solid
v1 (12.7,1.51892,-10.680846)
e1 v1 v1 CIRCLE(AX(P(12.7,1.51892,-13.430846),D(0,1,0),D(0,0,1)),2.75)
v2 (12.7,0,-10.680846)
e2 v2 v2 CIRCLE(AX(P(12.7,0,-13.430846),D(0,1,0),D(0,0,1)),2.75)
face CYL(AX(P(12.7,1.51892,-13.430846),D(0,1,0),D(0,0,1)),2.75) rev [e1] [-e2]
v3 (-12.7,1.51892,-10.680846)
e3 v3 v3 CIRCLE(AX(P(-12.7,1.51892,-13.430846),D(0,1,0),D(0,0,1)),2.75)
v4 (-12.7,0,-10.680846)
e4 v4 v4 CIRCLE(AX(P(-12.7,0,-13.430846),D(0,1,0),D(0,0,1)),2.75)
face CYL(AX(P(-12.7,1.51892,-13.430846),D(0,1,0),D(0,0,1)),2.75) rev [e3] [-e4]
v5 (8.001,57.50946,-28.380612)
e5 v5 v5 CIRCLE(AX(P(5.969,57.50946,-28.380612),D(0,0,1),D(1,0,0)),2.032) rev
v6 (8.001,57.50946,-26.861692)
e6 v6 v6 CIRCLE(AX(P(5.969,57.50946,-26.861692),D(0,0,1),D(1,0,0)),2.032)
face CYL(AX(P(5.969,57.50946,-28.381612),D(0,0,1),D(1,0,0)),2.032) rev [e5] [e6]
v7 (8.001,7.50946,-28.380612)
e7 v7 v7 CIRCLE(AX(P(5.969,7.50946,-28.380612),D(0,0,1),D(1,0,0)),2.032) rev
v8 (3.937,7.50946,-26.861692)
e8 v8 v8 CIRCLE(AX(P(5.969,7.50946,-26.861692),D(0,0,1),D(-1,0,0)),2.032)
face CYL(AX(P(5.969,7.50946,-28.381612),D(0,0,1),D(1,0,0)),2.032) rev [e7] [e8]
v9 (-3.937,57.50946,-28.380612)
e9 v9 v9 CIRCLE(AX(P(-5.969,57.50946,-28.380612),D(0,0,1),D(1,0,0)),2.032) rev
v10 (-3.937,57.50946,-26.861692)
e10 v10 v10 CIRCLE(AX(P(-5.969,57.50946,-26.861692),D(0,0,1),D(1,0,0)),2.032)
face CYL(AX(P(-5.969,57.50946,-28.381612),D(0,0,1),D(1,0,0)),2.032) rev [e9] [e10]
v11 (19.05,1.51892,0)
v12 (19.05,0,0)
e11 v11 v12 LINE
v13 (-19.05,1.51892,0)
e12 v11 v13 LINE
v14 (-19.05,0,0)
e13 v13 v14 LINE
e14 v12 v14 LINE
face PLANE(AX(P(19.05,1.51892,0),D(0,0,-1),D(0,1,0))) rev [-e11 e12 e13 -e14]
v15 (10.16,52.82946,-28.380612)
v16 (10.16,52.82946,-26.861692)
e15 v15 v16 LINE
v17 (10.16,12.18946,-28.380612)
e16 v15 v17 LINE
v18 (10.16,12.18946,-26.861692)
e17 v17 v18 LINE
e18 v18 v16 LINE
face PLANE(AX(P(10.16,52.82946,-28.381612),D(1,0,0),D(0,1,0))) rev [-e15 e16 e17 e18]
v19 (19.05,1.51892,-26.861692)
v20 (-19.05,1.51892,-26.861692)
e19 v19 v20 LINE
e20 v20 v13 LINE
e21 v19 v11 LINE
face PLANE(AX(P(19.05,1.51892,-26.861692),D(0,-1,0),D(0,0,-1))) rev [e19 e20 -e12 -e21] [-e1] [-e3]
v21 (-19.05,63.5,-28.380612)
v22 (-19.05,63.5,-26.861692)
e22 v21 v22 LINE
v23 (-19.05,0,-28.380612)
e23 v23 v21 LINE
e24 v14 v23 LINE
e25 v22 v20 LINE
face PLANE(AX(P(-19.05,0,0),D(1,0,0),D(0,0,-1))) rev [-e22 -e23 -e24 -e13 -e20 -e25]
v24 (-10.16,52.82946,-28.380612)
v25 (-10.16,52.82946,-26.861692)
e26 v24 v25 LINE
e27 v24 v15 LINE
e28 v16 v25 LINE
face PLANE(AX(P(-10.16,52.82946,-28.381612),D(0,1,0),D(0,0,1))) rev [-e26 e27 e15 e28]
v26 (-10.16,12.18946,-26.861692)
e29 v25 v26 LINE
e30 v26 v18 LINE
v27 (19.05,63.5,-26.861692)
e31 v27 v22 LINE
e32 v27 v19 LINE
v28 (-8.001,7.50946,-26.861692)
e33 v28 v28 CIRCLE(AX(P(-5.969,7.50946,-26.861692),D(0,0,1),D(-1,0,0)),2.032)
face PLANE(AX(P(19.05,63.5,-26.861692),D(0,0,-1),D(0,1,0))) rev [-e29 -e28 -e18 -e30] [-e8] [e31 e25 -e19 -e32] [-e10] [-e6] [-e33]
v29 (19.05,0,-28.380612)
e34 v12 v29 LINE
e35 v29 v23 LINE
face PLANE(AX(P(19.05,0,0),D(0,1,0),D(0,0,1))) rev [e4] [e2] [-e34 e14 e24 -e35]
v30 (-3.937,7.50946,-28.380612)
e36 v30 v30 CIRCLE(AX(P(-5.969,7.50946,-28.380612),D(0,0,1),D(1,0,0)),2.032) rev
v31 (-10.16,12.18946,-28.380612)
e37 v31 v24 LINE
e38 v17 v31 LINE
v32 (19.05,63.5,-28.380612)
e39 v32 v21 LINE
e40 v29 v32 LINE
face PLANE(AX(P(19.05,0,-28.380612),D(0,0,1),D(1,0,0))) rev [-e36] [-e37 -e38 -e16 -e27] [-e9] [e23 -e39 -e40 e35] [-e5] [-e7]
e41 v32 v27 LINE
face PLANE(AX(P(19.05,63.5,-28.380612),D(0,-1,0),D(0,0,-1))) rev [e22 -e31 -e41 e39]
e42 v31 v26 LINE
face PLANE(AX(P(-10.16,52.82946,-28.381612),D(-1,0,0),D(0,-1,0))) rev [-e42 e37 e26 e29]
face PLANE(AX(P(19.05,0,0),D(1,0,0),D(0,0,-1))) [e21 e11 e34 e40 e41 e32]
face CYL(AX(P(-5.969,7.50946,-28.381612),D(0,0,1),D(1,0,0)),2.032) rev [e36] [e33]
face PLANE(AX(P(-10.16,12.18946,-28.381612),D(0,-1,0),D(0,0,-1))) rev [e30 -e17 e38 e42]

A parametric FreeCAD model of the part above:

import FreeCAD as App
import Part
import Sketcher
from FreeCAD import Vector
Q = App.Units.Quantity

doc = App.newDocument("Part")
body = doc.addObject("PartDesign::Body", "Body")

# Sketch on YZ plane
sketch1 = doc.addObject("Sketcher::SketchObject", "Sketch")
body.addObject(sketch1)
sketch1.AttachmentSupport = (doc.YZ_Plane, [""])
sketch1.MapMode = "FlatFace"
sketch1.addGeometry([
    Part.LineSegment(Vector(0, 0, 0), Vector(0, -28.380612, 0)),  # 0
    Part.LineSegment(Vector(0, -28.380612, 0), Vector(63.5, -28.380612, 0)),  # 1
    Part.LineSegment(Vector(63.5, -28.380612, 0), Vector(63.5, -26.861692, 0)),  # 2
    Part.LineSegment(Vector(63.5, -26.861692, 0), Vector(1.51892, -26.861692, 0)),  # 3
    Part.LineSegment(Vector(1.51892, -26.861692, 0), Vector(1.51892, 0, 0)),  # 4
    Part.LineSegment(Vector(1.51892, 0, 0), Vector(0, 0, 0)),  # 5
], False)
sketch1.addConstraint([
    Sketcher.Constraint("Coincident", 0, 2, 1, 1),
    Sketcher.Constraint("Coincident", 1, 2, 2, 1),
    Sketcher.Constraint("Coincident", 2, 2, 3, 1),
    Sketcher.Constraint("Coincident", 3, 2, 4, 1),
    Sketcher.Constraint("Coincident", 4, 2, 5, 1),
    Sketcher.Constraint("Coincident", 5, 2, 0, 1),
    Sketcher.Constraint("Vertical", 0),
    Sketcher.Constraint("Horizontal", 1),
    Sketcher.Constraint("Vertical", 2),
    Sketcher.Constraint("Horizontal", 3),
    Sketcher.Constraint("Vertical", 4),
    Sketcher.Constraint("Horizontal", 5),
    Sketcher.Constraint("Coincident", 5, 2, -1, 1),
    Sketcher.Constraint("Equal", 5, 2),
    Sketcher.Constraint("DistanceX", 1, 1, 1, 2, Q("2.5 in")),
    Sketcher.Constraint("DistanceX", 3, 2, 3, 1, Q("2.4402 in")),
    Sketcher.Constraint("DistanceY", 0, 2, 0, 1, 28.380612),
])
pad1 = doc.addObject("PartDesign::Pad", "Pad")
body.addObject(pad1)
pad1.Profile = sketch1
pad1.Length = Q("1.5 in")
pad1.Midplane = True

# Sketch on XZ plane
sketch2 = doc.addObject("Sketcher::SketchObject", "Sketch001")
body.addObject(sketch2)
sketch2.AttachmentSupport = (doc.XZ_Plane, [""])
sketch2.MapMode = "FlatFace"
sketch2.AttachmentOffset = App.Placement(Vector(0, 0, -0.0598 * 25.4), App.Rotation())
sketch2.addGeometry([
    Part.Circle(Vector(-12.7, -13.430846, 0), Vector(0, 0, 1), 2.75),
    Part.Circle(Vector(12.7, -13.430846, 0), Vector(0, 0, 1), 2.75),
], False)
sketch2.addConstraint([
    Sketcher.Constraint("Equal", 0, 1),
    Sketcher.Constraint("Symmetric", 0, 3, 1, 3, -2),
    Sketcher.Constraint("DistanceX", 0, 3, 1, 3, Q("1 in")),
    Sketcher.Constraint("Diameter", 0, 5.5),
    Sketcher.Constraint("DistanceY", 0, 3, -1, 1, 13.430846),
])
doc.recompute()
hole = doc.addObject("PartDesign::Hole", "Hole")
body.addObject(hole)
hole.Profile = sketch2
hole.ThreadType = "None"
hole.Diameter = 5.5
hole.DepthType = "ThroughAll"
hole.Reversed = True

# Sketch on XY plane
sketch3 = doc.addObject("Sketcher::SketchObject", "Sketch002")
body.addObject(sketch3)
sketch3.AttachmentSupport = (doc.XY_Plane, [""])
sketch3.MapMode = "FlatFace"
sketch3.AttachmentOffset = App.Placement(Vector(0, 0, -26.861692), App.Rotation())
sketch3.addGeometry([
    Part.LineSegment(Vector(-10.16, 52.82946, 0), Vector(-10.16, 12.18946, 0)),
    Part.LineSegment(Vector(-10.16, 12.18946, 0), Vector(10.16, 12.18946, 0)),
    Part.LineSegment(Vector(10.16, 12.18946, 0), Vector(10.16, 52.82946, 0)),
    Part.LineSegment(Vector(10.16, 52.82946, 0), Vector(-10.16, 52.82946, 0)),
], False)
sketch3.addConstraint([
    Sketcher.Constraint("Coincident", 0, 2, 1, 1),
    Sketcher.Constraint("Coincident", 1, 2, 2, 1),
    Sketcher.Constraint("Coincident", 2, 2, 3, 1),
    Sketcher.Constraint("Coincident", 3, 2, 0, 1),
    Sketcher.Constraint("Vertical", 0),
    Sketcher.Constraint("Horizontal", 1),
    Sketcher.Constraint("Vertical", 2),
    Sketcher.Constraint("Horizontal", 3),
    Sketcher.Constraint("DistanceX", 1, 1, 1, 2, Q("0.8 in")),
    Sketcher.Constraint("DistanceY", 0, 2, 0, 1, Q("1.6 in")),
    Sketcher.Constraint("DistanceX", 0, 2, -1, 1, Q("0.4 in")),
    Sketcher.Constraint("DistanceY", -1, 1, 0, 2, Q("0.4799 in")),
])
pocket1 = doc.addObject("PartDesign::Pocket", "Pocket")
body.addObject(pocket1)
pocket1.Profile = sketch3
pocket1.Type = "UpToFirst"

# Sketch on XY plane
sketch4 = doc.addObject("Sketcher::SketchObject", "Sketch003")
body.addObject(sketch4)
sketch4.AttachmentSupport = (doc.XY_Plane, [""])
sketch4.MapMode = "FlatFace"
sketch4.AttachmentOffset = App.Placement(Vector(0, 0, -26.861692), App.Rotation())
sketch4.addGeometry(Part.Circle(Vector(-5.969, 57.50946, 0), Vector(0, 0, 1), 2.032), False)
sketch4.addConstraint([
    Sketcher.Constraint("Diameter", 0, Q("0.16 in")),
    Sketcher.Constraint("DistanceX", 0, 3, -1, 1, Q("0.235 in")),
    Sketcher.Constraint("DistanceY", -1, 1, 0, 3, 57.50946),
])
pocket2 = doc.addObject("PartDesign::Pocket", "Pocket001")
body.addObject(pocket2)
pocket2.Profile = sketch4
pocket2.Type = "UpToFirst"

# Sketch on XY plane
sketch5 = doc.addObject("Sketcher::SketchObject", "Sketch004")
body.addObject(sketch5)
sketch5.AttachmentSupport = (doc.XY_Plane, [""])
sketch5.MapMode = "FlatFace"
sketch5.AttachmentOffset = App.Placement(Vector(0, 0, -26.861692), App.Rotation())
sketch5.addGeometry(Part.Circle(Vector(5.969, 57.50946, 0), Vector(0, 0, 1), 2.032), False)
sketch5.addConstraint([
    Sketcher.Constraint("Diameter", 0, Q("0.16 in")),
    Sketcher.Constraint("DistanceX", -1, 1, 0, 3, Q("0.235 in")),
    Sketcher.Constraint("DistanceY", -1, 1, 0, 3, 57.50946),
])
pocket3 = doc.addObject("PartDesign::Pocket", "Pocket002")
body.addObject(pocket3)
pocket3.Profile = sketch5
pocket3.Type = "UpToFirst"

# Sketch on XY plane
sketch6 = doc.addObject("Sketcher::SketchObject", "Sketch005")
body.addObject(sketch6)
sketch6.AttachmentSupport = (doc.XY_Plane, [""])
sketch6.MapMode = "FlatFace"
sketch6.AttachmentOffset = App.Placement(Vector(0, 0, -26.861692), App.Rotation())
sketch6.addGeometry(Part.Circle(Vector(-5.969, 7.50946, 0), Vector(0, 0, 1), 2.032), False)
sketch6.addConstraint([
    Sketcher.Constraint("Diameter", 0, Q("0.16 in")),
    Sketcher.Constraint("DistanceX", 0, 3, -1, 1, Q("0.235 in")),
    Sketcher.Constraint("DistanceY", -1, 1, 0, 3, 7.50946),
])
pocket4 = doc.addObject("PartDesign::Pocket", "Pocket003")
body.addObject(pocket4)
pocket4.Profile = sketch6
pocket4.Type = "UpToFirst"

# Sketch on XY plane
sketch7 = doc.addObject("Sketcher::SketchObject", "Sketch006")
body.addObject(sketch7)
sketch7.AttachmentSupport = (doc.XY_Plane, [""])
sketch7.MapMode = "FlatFace"
sketch7.AttachmentOffset = App.Placement(Vector(0, 0, -26.861692), App.Rotation())
sketch7.addGeometry(Part.Circle(Vector(5.969, 7.50946, 0), Vector(0, 0, 1), 2.032), False)
sketch7.addConstraint([
    Sketcher.Constraint("Diameter", 0, Q("0.16 in")),
    Sketcher.Constraint("DistanceX", -1, 1, 0, 3, Q("0.235 in")),
    Sketcher.Constraint("DistanceY", -1, 1, 0, 3, 7.50946),
])
pocket5 = doc.addObject("PartDesign::Pocket", "Pocket004")
body.addObject(pocket5)
pocket5.Profile = sketch7
pocket5.Type = "UpToFirst"

doc.recompute()
